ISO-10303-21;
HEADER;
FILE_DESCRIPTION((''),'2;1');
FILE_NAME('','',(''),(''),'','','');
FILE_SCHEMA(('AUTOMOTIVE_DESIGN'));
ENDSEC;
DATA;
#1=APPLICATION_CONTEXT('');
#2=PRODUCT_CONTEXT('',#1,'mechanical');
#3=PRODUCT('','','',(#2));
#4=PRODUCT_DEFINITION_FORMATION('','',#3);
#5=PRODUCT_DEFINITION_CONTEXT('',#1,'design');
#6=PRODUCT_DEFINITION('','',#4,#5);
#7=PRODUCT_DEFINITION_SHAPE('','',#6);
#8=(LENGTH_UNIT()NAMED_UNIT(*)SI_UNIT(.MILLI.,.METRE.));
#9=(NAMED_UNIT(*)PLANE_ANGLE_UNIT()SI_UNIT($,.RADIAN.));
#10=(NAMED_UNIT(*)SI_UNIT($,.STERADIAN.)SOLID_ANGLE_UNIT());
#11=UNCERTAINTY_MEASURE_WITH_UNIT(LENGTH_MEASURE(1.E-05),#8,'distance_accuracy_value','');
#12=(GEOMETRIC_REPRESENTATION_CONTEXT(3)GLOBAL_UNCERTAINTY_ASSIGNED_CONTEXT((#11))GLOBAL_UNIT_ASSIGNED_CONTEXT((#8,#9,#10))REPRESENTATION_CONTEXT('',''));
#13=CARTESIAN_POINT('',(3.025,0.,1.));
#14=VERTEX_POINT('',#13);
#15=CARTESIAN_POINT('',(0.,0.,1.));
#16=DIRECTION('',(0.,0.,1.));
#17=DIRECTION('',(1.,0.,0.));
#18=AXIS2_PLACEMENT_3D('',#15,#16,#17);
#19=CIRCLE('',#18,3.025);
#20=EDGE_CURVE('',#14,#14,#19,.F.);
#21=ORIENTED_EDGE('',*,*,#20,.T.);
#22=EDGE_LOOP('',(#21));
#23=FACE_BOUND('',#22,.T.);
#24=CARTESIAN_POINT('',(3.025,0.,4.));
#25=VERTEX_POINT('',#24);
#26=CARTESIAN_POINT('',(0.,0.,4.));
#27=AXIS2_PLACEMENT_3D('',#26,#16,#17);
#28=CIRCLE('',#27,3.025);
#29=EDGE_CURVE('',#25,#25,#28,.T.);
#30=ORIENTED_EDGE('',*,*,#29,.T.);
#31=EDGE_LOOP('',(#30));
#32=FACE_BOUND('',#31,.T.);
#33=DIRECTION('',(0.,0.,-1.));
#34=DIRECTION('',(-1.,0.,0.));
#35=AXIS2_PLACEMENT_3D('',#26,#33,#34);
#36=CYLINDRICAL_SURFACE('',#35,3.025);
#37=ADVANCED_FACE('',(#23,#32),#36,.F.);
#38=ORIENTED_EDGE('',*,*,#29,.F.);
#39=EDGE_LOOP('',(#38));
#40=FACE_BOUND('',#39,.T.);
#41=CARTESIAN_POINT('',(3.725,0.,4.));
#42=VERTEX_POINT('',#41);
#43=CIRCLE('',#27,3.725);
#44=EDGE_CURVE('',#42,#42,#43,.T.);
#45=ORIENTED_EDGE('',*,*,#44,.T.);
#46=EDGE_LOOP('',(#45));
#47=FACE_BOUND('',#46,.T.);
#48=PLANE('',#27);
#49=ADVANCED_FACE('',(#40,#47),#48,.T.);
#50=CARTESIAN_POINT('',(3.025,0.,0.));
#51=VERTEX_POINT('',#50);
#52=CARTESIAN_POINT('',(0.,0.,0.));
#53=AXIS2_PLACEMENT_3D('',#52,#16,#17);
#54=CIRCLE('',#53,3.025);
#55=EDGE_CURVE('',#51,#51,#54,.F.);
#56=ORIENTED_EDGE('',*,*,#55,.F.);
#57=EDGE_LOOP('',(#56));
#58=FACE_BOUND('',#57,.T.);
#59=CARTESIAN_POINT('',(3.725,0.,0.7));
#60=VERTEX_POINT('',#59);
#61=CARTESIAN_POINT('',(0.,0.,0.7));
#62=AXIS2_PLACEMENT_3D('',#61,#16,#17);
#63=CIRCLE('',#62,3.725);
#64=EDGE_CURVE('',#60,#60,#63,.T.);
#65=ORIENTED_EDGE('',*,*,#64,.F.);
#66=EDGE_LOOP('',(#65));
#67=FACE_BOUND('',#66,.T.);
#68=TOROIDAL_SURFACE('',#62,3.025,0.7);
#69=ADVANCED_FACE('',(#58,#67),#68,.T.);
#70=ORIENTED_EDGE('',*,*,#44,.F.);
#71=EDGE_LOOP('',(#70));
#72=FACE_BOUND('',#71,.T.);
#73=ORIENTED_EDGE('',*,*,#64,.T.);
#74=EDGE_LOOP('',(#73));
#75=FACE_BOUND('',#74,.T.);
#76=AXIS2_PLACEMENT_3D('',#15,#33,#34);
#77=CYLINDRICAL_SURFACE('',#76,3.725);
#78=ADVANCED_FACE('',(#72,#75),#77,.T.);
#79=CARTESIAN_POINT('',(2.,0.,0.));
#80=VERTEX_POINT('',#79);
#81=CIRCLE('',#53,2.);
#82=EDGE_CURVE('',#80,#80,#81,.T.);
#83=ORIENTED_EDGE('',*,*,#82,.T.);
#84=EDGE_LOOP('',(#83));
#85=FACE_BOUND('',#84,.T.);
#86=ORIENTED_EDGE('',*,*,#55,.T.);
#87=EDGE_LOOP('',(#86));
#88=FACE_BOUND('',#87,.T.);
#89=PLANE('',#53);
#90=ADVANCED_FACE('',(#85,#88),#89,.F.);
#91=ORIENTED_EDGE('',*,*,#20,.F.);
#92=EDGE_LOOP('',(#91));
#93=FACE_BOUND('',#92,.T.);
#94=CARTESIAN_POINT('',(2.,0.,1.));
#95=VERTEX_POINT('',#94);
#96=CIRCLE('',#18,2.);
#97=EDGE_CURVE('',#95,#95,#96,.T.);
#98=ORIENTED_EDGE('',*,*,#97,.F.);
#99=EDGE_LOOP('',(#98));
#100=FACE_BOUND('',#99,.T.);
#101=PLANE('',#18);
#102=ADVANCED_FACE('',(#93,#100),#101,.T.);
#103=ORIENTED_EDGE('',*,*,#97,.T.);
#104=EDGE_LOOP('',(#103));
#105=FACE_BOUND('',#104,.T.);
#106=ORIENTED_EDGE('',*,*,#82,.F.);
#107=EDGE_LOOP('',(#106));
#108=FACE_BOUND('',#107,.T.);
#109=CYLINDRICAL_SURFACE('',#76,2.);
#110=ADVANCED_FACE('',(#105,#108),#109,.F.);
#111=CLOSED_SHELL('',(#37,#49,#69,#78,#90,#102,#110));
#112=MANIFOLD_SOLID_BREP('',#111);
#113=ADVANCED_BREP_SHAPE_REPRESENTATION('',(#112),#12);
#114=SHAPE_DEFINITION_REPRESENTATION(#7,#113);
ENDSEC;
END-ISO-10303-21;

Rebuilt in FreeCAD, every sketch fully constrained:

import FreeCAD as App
import Part
import Sketcher
Q = App.Units.Quantity


def edges_at(feature, points):
    """Names of the edges that pass closest to the given points."""
    edges = feature.Shape.Edges
    near = lambda p: min(range(len(edges)), key=lambda i: edges[i].distToShape(Part.Vertex(*p))[0])
    return sorted({f"Edge{near(p) + 1}" for p in points})

doc = App.newDocument("Part")
body = doc.addObject("PartDesign::Body", "Body")

sketch1 = body.newObject("Sketcher::SketchObject", "Sketch")
sketch1.AttachmentSupport = (doc.getObject("XY_Plane"), [""])
sketch1.MapMode = "FlatFace"
sketch1.addGeometry(Part.Circle(App.Vector(0, 0, 0), App.Vector(0, 0, 1), 3.7), False)
sketch1.addGeometry(Part.Circle(App.Vector(0, 0, 0), App.Vector(0, 0, 1), 2), False)
sketch1.addConstraint(Sketcher.Constraint("Coincident", 0, 3, -1, 1))
sketch1.addConstraint(Sketcher.Constraint("Coincident", 1, 3, -1, 1))
sketch1.addConstraint(Sketcher.Constraint("Diameter", 1, Q("4 mm")))
sketch1.addConstraint(Sketcher.Constraint("Diameter", 0, Q("7.45 mm")))
pad1 = body.newObject("PartDesign::Pad", "Pad")
pad1.Profile = sketch1
pad1.Length = 1

sketch2 = body.newObject("Sketcher::SketchObject", "Sketch001")
sketch2.AttachmentSupport = (doc.getObject("XY_Plane"), [""])
sketch2.MapMode = "FlatFace"
sketch2.AttachmentOffset = App.Placement(App.Vector(0, 0, 1), App.Rotation())
sketch2.addGeometry(Part.Circle(App.Vector(0, 0, 0), App.Vector(0, 0, 1), 3.7), False)
sketch2.addGeometry(Part.Circle(App.Vector(0, 0, 0), App.Vector(0, 0, 1), 3), False)
sketch2.addConstraint(Sketcher.Constraint("Coincident", 0, 3, -1, 1))
sketch2.addConstraint(Sketcher.Constraint("Coincident", 1, 3, -1, 1))
sketch2.addConstraint(Sketcher.Constraint("Diameter", 0, Q("7.45 mm")))
sketch2.addConstraint(Sketcher.Constraint("Diameter", 1, Q("6.05 mm")))
pad2 = body.newObject("PartDesign::Pad", "Pad001")
pad2.Profile = sketch2
pad2.Length = 3
doc.recompute()

fillet = body.newObject("PartDesign::Fillet", "Fillet")
fillet.Base = (pad2, edges_at(pad2, [(-3.725, 0, 0)]))
fillet.Radius = 0.7

doc.recompute()
